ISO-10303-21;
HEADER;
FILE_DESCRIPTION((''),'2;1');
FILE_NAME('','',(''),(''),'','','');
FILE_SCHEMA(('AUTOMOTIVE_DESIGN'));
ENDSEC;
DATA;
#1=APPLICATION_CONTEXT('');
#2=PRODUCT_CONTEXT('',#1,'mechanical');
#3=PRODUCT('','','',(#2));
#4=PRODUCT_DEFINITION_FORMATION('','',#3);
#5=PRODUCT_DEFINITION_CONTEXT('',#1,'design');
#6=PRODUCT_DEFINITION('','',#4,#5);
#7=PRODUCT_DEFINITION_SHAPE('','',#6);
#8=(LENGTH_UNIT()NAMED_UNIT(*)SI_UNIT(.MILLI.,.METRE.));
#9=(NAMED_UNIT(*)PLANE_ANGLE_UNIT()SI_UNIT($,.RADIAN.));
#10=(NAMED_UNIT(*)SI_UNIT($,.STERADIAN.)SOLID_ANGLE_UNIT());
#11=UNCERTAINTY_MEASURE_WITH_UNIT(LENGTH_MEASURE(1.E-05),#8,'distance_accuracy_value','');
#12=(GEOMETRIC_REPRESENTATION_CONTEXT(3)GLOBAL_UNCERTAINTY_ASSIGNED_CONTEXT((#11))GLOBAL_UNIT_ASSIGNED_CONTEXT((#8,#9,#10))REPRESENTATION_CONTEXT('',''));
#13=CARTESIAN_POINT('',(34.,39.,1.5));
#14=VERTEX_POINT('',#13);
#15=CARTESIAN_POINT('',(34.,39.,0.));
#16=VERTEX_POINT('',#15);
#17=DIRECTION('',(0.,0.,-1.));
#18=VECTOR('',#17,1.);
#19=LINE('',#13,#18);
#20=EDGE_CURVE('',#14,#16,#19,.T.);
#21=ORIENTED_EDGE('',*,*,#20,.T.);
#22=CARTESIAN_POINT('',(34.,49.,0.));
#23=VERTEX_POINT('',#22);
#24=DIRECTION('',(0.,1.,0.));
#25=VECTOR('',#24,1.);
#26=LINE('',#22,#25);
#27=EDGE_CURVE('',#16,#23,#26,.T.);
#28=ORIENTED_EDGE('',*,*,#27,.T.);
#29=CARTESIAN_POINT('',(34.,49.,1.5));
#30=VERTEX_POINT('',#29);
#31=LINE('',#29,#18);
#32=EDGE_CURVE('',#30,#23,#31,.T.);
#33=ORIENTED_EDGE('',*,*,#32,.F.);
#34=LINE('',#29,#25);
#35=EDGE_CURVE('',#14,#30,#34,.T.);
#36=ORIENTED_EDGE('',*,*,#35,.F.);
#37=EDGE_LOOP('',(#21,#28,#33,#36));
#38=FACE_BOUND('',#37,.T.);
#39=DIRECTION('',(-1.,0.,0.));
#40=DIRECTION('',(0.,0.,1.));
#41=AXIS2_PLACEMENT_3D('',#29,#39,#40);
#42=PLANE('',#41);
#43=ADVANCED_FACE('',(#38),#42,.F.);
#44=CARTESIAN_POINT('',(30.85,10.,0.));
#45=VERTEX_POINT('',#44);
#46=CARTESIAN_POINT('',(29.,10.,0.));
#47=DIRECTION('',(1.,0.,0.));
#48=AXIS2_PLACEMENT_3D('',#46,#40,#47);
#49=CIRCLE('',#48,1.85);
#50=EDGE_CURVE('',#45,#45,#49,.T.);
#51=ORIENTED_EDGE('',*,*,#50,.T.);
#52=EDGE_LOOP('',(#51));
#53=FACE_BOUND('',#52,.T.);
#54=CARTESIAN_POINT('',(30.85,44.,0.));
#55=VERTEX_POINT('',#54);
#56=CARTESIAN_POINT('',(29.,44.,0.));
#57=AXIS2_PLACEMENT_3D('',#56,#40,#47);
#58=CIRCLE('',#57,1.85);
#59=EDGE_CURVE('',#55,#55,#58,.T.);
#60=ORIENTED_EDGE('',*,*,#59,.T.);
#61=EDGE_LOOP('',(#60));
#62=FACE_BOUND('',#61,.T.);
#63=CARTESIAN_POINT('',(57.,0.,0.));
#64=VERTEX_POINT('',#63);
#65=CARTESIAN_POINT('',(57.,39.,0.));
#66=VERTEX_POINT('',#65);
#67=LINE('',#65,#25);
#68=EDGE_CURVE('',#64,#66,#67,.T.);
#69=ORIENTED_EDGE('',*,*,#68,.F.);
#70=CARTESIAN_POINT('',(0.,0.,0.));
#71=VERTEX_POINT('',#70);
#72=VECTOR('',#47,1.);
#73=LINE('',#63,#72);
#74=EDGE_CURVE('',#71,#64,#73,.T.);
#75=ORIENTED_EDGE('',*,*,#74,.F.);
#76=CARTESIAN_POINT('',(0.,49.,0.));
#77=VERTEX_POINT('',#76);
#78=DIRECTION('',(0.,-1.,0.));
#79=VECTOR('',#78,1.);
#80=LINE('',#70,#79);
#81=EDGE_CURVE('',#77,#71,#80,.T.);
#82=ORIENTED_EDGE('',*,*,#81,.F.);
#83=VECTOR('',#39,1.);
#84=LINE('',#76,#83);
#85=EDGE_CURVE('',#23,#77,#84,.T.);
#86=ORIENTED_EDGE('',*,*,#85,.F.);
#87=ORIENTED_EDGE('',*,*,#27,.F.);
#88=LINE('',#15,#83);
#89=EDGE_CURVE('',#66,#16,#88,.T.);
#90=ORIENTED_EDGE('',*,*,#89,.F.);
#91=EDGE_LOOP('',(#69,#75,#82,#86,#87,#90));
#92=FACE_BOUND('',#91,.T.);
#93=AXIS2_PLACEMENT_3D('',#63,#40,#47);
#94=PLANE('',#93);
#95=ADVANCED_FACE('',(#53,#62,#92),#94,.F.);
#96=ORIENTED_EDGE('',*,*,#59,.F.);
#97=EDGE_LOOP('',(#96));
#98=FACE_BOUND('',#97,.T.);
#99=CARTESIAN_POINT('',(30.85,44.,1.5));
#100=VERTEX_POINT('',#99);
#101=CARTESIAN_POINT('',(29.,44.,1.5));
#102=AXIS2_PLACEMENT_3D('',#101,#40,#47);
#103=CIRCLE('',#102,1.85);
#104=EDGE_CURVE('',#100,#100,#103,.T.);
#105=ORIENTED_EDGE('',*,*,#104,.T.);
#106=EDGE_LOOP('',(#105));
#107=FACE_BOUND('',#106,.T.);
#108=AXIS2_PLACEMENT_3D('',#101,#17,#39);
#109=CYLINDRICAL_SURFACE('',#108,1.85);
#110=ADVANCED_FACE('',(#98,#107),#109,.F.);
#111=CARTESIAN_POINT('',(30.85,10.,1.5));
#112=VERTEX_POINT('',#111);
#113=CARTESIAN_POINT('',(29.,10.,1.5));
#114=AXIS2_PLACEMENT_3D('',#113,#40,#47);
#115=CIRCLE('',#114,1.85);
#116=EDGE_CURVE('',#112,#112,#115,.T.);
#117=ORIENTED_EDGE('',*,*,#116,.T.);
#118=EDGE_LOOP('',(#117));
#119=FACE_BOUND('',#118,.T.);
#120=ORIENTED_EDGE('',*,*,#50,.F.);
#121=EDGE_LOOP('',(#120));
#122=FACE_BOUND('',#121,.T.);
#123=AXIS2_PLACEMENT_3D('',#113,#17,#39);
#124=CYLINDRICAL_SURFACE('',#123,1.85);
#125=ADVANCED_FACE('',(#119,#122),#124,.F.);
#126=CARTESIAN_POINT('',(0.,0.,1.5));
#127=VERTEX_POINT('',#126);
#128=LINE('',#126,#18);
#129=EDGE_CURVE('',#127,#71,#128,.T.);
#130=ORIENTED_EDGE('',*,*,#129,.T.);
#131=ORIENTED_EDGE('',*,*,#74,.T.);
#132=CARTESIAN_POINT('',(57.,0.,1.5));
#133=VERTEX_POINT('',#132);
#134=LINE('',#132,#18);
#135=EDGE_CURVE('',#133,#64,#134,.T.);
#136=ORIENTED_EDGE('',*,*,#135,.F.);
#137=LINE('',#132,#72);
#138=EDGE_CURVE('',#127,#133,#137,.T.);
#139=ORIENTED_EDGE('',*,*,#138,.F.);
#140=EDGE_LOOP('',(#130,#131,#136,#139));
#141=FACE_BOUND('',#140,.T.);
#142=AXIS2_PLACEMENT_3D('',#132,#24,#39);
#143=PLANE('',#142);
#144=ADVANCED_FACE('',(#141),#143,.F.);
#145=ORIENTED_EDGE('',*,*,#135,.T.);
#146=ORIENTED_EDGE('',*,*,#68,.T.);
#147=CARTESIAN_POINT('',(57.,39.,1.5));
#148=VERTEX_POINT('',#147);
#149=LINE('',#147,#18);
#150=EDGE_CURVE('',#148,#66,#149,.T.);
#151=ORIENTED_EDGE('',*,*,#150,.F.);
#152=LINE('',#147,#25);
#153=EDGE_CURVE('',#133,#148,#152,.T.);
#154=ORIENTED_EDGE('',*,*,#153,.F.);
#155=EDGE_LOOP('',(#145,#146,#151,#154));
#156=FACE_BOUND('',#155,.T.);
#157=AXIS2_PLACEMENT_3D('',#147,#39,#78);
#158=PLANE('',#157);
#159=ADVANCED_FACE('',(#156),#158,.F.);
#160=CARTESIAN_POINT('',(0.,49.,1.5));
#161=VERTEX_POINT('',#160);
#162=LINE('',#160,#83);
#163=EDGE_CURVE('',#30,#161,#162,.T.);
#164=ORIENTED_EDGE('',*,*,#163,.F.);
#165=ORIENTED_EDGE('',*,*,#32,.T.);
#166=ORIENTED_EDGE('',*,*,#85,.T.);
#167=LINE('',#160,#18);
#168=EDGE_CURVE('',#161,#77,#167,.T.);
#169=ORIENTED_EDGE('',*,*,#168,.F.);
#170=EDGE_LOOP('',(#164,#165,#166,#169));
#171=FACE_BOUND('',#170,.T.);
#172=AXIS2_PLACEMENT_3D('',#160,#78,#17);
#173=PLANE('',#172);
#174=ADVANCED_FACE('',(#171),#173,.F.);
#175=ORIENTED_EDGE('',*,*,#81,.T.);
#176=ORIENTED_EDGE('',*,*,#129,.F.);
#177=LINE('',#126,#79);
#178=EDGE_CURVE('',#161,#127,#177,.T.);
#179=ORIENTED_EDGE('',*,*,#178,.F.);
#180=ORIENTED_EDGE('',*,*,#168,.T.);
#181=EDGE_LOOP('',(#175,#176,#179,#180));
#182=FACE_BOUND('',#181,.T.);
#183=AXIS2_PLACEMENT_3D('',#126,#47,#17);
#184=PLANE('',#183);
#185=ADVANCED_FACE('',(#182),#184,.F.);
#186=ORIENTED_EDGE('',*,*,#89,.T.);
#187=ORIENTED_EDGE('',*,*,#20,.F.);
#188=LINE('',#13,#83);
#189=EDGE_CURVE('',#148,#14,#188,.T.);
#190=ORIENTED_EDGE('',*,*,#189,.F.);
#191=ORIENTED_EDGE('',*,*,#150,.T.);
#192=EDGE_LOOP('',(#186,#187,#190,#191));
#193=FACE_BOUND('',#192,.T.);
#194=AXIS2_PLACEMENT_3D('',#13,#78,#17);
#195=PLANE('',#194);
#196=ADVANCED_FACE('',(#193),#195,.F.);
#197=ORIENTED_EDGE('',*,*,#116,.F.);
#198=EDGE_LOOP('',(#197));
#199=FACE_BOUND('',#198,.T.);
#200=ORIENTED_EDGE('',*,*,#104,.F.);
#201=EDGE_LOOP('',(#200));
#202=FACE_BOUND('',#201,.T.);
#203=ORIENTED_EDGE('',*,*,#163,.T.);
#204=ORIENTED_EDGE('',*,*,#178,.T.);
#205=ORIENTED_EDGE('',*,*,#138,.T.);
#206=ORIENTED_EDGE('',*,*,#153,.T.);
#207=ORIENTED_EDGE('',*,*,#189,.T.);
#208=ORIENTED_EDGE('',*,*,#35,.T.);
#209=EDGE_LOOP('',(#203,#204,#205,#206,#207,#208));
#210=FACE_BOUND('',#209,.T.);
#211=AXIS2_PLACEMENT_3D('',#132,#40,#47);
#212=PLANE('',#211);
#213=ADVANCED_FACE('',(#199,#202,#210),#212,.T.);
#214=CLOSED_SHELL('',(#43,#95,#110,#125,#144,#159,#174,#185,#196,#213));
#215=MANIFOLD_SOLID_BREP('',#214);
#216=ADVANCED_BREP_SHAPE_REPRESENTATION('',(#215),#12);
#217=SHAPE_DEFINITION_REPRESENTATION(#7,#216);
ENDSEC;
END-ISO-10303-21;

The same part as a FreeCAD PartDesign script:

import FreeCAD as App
import Part
import Sketcher
Q = App.Units.Quantity

doc = App.newDocument("Part")
body = doc.addObject("PartDesign::Body", "Body")

sketch1 = body.newObject("Sketcher::SketchObject", "Sketch")
sketch1.AttachmentSupport = (doc.getObject("XY_Plane"), [""])
sketch1.MapMode = "FlatFace"
sketch1.addGeometry(Part.LineSegment(App.Vector(0, 49, 0), App.Vector(0, 0, 0)), False)
sketch1.addGeometry(Part.LineSegment(App.Vector(0, 0, 0), App.Vector(57, 0, 0)), False)
sketch1.addGeometry(Part.LineSegment(App.Vector(57, 0, 0), App.Vector(57, 39, 0)), False)
sketch1.addGeometry(Part.LineSegment(App.Vector(57, 39, 0), App.Vector(34, 39, 0)), False)
sketch1.addGeometry(Part.LineSegment(App.Vector(34, 39, 0), App.Vector(34, 49, 0)), False)
sketch1.addGeometry(Part.LineSegment(App.Vector(34, 49, 0), App.Vector(0, 49, 0)), False)
sketch1.addGeometry(Part.Circle(App.Vector(29, 10, 0), App.Vector(0, 0, 1), 1.9), False)
sketch1.addGeometry(Part.Circle(App.Vector(29, 44, 0), App.Vector(0, 0, 1), 1.9), False)
sketch1.addConstraint(Sketcher.Constraint("Coincident", 0, 2, 1, 1))
sketch1.addConstraint(Sketcher.Constraint("Coincident", 1, 2, 2, 1))
sketch1.addConstraint(Sketcher.Constraint("Coincident", 2, 2, 3, 1))
sketch1.addConstraint(Sketcher.Constraint("Coincident", 3, 2, 4, 1))
sketch1.addConstraint(Sketcher.Constraint("Coincident", 4, 2, 5, 1))
sketch1.addConstraint(Sketcher.Constraint("Coincident", 5, 2, 0, 1))
sketch1.addConstraint(Sketcher.Constraint("Vertical", 0))
sketch1.addConstraint(Sketcher.Constraint("Horizontal", 1))
sketch1.addConstraint(Sketcher.Constraint("Vertical", 2))
sketch1.addConstraint(Sketcher.Constraint("Horizontal", 3))
sketch1.addConstraint(Sketcher.Constraint("Vertical", 4))
sketch1.addConstraint(Sketcher.Constraint("Horizontal", 5))
sketch1.addConstraint(Sketcher.Constraint("Coincident", 0, 2, -1, 1))
sketch1.addConstraint(Sketcher.Constraint("Equal", 6, 7))
sketch1.addConstraint(Sketcher.Constraint("Vertical", 6, 3, 7, 3))
sketch1.addConstraint(Sketcher.Constraint("Diameter", 6, Q("3.7 mm")))
sketch1.addConstraint(Sketcher.Constraint("DistanceX", 1, 1, 1, 2, Q("57 mm")))
sketch1.addConstraint(Sketcher.Constraint("DistanceX", 3, 2, 3, 1, Q("23 mm")))
sketch1.addConstraint(Sketcher.Constraint("DistanceY", 0, 2, 0, 1, Q("49 mm")))
sketch1.addConstraint(Sketcher.Constraint("DistanceY", 2, 1, 2, 2, Q("39 mm")))
sketch1.addConstraint(Sketcher.Constraint("DistanceX", -1, 1, 6, 3, Q("29 mm")))
sketch1.addConstraint(Sketcher.Constraint("DistanceY", -1, 1, 6, 3, Q("10 mm")))
sketch1.addConstraint(Sketcher.Constraint("DistanceY", -1, 1, 7, 3, Q("44 mm")))
pad1 = body.newObject("PartDesign::Pad", "Pad")
pad1.Profile = sketch1
pad1.Length = 1.5

doc.recompute()
